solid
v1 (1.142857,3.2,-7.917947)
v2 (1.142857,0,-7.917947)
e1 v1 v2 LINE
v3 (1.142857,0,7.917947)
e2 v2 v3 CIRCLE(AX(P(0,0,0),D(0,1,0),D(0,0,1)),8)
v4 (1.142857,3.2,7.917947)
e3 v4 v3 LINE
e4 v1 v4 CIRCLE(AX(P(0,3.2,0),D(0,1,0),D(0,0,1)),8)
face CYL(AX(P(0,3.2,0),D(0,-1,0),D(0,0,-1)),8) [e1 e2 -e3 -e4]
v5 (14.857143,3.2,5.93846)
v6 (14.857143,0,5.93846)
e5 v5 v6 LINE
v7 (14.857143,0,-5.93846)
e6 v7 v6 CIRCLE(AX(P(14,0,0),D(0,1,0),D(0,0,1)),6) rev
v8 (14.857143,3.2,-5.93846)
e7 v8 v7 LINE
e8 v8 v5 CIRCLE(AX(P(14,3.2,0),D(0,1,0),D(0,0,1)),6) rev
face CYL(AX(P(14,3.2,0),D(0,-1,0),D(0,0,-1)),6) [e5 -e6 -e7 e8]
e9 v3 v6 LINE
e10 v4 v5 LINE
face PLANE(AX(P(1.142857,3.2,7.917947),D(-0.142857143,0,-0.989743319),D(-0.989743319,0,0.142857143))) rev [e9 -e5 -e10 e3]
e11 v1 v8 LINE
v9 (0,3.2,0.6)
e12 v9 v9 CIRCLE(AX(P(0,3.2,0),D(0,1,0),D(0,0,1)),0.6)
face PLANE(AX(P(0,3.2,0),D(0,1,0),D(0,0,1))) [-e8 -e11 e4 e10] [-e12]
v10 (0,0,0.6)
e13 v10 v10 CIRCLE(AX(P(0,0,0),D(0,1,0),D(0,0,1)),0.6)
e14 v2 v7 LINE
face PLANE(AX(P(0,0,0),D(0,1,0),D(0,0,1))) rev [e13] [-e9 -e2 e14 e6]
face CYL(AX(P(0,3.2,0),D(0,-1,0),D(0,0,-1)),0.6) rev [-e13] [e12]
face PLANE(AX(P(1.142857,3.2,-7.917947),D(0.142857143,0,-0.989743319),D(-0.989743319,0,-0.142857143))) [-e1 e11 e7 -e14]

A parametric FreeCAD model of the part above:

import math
import FreeCAD as App
import Part
import Sketcher

doc = App.newDocument("Part")
body = doc.addObject("PartDesign::Body", "Body")

sketch1 = body.newObject("Sketcher::SketchObject", "Sketch")
sketch1.AttachmentSupport = (doc.getObject("XZ_Plane"), [""])
sketch1.MapMode = "FlatFace"
sketch1.addGeometry([
    Part.LineSegment(App.Vector(1.1, 7.9, 0), App.Vector(14.9, 5.9, 0)),
    Part.ArcOfCircle(Part.Circle(App.Vector(14, 0, 0), App.Vector(0, 0, 1), 6), math.radians(-82), math.radians(82)),
    Part.LineSegment(App.Vector(14.9, -5.9, 0), App.Vector(1.1, -7.9, 0)),
    Part.ArcOfCircle(Part.Circle(App.Vector(0, 0, 0), App.Vector(0, 0, 1), 8), math.radians(82), math.radians(278)),
    Part.Circle(App.Vector(0, 0, 0), App.Vector(0, 0, 1), 0.6),
], False)
sketch1.addConstraint([
    Sketcher.Constraint("Tangent", 0, 2, 1, 2),
    Sketcher.Constraint("Tangent", 1, 1, 2, 1),
    Sketcher.Constraint("Tangent", 2, 2, 3, 2),
    Sketcher.Constraint("Tangent", 3, 1, 0, 1),
    Sketcher.Constraint("Coincident", 3, 3, -1, 1),
    Sketcher.Constraint("Coincident", 4, 3, -1, 1),
    Sketcher.Constraint("PointOnObject", 1, 3, -1),
    Sketcher.Constraint("Radius", 1, 6.0),
    Sketcher.Constraint("Radius", 3, 8.0),
    Sketcher.Constraint("Diameter", 4, 1.2),
    Sketcher.Constraint("DistanceX", -1, 1, 1, 3, 14.0),
])
pad1 = body.newObject("PartDesign::Pad", "Pad")
pad1.Profile = sketch1
pad1.Length = 3.2
pad1.Reversed = True

doc.recompute()
